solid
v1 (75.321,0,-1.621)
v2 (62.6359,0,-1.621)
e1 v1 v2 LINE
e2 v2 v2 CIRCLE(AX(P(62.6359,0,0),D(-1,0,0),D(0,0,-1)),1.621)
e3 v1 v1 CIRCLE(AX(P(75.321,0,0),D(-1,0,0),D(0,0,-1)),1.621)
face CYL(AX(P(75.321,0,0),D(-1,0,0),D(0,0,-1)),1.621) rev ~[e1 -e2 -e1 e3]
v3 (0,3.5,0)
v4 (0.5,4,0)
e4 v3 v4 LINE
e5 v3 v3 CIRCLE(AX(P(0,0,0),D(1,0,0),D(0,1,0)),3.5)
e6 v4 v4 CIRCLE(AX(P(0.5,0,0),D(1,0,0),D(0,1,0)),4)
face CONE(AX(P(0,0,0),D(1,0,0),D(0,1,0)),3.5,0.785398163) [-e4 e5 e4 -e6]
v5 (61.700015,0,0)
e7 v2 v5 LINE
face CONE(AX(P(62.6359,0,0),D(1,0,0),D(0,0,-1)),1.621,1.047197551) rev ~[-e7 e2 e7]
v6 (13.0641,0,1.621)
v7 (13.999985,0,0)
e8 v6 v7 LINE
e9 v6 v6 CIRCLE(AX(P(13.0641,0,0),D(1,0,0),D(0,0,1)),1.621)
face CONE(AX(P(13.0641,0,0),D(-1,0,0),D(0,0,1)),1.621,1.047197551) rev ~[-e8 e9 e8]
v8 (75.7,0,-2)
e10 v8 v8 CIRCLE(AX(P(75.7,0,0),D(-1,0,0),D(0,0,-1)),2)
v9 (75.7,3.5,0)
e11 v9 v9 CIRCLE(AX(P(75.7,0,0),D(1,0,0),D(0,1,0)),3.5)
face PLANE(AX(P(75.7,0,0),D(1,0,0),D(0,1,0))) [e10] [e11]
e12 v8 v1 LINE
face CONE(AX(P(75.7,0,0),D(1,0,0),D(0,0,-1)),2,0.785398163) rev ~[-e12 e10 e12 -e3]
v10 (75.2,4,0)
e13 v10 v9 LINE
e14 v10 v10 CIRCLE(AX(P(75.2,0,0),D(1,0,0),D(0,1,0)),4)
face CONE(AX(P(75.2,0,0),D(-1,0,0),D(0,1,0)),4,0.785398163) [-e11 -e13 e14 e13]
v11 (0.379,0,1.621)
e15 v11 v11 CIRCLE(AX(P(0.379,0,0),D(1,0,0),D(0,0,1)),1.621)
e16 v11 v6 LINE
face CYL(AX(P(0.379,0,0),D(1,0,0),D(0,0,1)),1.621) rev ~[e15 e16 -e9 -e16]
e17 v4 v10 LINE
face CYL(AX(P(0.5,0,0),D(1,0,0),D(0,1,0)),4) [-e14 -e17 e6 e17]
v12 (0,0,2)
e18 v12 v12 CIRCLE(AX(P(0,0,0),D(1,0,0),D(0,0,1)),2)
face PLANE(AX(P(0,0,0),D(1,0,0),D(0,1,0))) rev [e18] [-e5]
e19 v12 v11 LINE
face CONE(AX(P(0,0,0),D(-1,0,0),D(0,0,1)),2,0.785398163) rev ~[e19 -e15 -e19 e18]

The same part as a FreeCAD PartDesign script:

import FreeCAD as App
import Part
import Sketcher


def add_polygon(sketch, points):
    """Adds a closed chain of lines whose ends are joined by coincident constraints."""
    first, n = sketch.GeometryCount, len(points)
    for a, b in zip(points, points[1:] + points[:1]):
        sketch.addGeometry(Part.LineSegment(App.Vector(*a, 0), App.Vector(*b, 0)), False)
    for i in range(n):
        sketch.addConstraint(Sketcher.Constraint("Coincident", first + i, 2, first + (i + 1) % n, 1))

doc = App.newDocument("Part")
body = doc.addObject("PartDesign::Body", "Body")

# Sketch on XY plane
sketch1 = body.newObject("Sketcher::SketchObject", "Sketch")
sketch1.AttachmentSupport = (doc.getObject("XY_Plane"), [""])
sketch1.MapMode = "FlatFace"
add_polygon(sketch1, [(0, 0), (75.7, 0), (75.7, 3.5), (75.2, 4), (0.5, 4), (0, 3.5)])  # lines 0-5
sketch1.addConstraint([
    Sketcher.Constraint("Horizontal", 0),
    Sketcher.Constraint("Vertical", 1),
    Sketcher.Constraint("Horizontal", 3),
    Sketcher.Constraint("Vertical", 5),
    Sketcher.Constraint("Coincident", 5, 2, -1, 1),
    Sketcher.Constraint("Perpendicular", 2, 4),
    Sketcher.Constraint("Horizontal", 1, 2, 4, 2),
    Sketcher.Constraint("Equal", 2, 4),
    Sketcher.Constraint("DistanceX", 0, 1, 0, 2, 75.7),
    Sketcher.Constraint("DistanceX", 3, 2, 3, 1, 74.7),
    Sketcher.Constraint("DistanceY", 1, 1, 1, 2, 3.5),
])
revolution = body.newObject("PartDesign::Revolution", "Revolution")
revolution.Profile = sketch1
revolution.ReferenceAxis = (sketch1, ["H_Axis"])
revolution.Angle = 360

# Sketch on YZ plane
sketch2 = body.newObject("Sketcher::SketchObject", "Sketch001")
sketch2.AttachmentSupport = (doc.getObject("YZ_Plane"), [""])
sketch2.MapMode = "FlatFace"
sketch2.addGeometry(Part.Circle(App.Vector(0, 0, 0), App.Vector(0, 0, 1), 1.621), False)
sketch2.addConstraint([
    Sketcher.Constraint("Coincident", 0, 3, -1, 1),
    Sketcher.Constraint("Diameter", 0, 3.242),
])
doc.recompute()
hole = body.newObject("PartDesign::Hole", "Hole")
hole.Profile = sketch2
hole.ThreadType = "None"
hole.Diameter = 3.242
hole.DepthType = "Dimension"
hole.Depth = 13.0641
hole.DrillPoint = "Angled"
hole.DrillPointAngle = 120
hole.HoleCutType = "Countersink"
hole.HoleCutDiameter = 4
hole.HoleCutCountersinkAngle = 90
hole.Reversed = True

# Sketch on YZ plane
sketch3 = body.newObject("Sketcher::SketchObject", "Sketch002")
sketch3.AttachmentSupport = (doc.getObject("YZ_Plane"), [""])
sketch3.MapMode = "FlatFace"
sketch3.AttachmentOffset = App.Placement(App.Vector(0, 0, 75.7), App.Rotation())
sketch3.addGeometry(Part.Circle(App.Vector(0, 0, 0), App.Vector(0, 0, 1), 1.621), False)
sketch3.addConstraint([
    Sketcher.Constraint("Coincident", 0, 3, -1, 1),
    Sketcher.Constraint("Diameter", 0, 3.242),
])
doc.recompute()
hole2 = body.newObject("PartDesign::Hole", "Hole001")
hole2.Profile = sketch3
hole2.ThreadType = "None"
hole2.Diameter = 3.242
hole2.DepthType = "Dimension"
hole2.Depth = 13.0641
hole2.DrillPoint = "Angled"
hole2.DrillPointAngle = 120
hole2.HoleCutType = "Countersink"
hole2.HoleCutDiameter = 4
hole2.HoleCutCountersinkAngle = 90

doc.recompute()
